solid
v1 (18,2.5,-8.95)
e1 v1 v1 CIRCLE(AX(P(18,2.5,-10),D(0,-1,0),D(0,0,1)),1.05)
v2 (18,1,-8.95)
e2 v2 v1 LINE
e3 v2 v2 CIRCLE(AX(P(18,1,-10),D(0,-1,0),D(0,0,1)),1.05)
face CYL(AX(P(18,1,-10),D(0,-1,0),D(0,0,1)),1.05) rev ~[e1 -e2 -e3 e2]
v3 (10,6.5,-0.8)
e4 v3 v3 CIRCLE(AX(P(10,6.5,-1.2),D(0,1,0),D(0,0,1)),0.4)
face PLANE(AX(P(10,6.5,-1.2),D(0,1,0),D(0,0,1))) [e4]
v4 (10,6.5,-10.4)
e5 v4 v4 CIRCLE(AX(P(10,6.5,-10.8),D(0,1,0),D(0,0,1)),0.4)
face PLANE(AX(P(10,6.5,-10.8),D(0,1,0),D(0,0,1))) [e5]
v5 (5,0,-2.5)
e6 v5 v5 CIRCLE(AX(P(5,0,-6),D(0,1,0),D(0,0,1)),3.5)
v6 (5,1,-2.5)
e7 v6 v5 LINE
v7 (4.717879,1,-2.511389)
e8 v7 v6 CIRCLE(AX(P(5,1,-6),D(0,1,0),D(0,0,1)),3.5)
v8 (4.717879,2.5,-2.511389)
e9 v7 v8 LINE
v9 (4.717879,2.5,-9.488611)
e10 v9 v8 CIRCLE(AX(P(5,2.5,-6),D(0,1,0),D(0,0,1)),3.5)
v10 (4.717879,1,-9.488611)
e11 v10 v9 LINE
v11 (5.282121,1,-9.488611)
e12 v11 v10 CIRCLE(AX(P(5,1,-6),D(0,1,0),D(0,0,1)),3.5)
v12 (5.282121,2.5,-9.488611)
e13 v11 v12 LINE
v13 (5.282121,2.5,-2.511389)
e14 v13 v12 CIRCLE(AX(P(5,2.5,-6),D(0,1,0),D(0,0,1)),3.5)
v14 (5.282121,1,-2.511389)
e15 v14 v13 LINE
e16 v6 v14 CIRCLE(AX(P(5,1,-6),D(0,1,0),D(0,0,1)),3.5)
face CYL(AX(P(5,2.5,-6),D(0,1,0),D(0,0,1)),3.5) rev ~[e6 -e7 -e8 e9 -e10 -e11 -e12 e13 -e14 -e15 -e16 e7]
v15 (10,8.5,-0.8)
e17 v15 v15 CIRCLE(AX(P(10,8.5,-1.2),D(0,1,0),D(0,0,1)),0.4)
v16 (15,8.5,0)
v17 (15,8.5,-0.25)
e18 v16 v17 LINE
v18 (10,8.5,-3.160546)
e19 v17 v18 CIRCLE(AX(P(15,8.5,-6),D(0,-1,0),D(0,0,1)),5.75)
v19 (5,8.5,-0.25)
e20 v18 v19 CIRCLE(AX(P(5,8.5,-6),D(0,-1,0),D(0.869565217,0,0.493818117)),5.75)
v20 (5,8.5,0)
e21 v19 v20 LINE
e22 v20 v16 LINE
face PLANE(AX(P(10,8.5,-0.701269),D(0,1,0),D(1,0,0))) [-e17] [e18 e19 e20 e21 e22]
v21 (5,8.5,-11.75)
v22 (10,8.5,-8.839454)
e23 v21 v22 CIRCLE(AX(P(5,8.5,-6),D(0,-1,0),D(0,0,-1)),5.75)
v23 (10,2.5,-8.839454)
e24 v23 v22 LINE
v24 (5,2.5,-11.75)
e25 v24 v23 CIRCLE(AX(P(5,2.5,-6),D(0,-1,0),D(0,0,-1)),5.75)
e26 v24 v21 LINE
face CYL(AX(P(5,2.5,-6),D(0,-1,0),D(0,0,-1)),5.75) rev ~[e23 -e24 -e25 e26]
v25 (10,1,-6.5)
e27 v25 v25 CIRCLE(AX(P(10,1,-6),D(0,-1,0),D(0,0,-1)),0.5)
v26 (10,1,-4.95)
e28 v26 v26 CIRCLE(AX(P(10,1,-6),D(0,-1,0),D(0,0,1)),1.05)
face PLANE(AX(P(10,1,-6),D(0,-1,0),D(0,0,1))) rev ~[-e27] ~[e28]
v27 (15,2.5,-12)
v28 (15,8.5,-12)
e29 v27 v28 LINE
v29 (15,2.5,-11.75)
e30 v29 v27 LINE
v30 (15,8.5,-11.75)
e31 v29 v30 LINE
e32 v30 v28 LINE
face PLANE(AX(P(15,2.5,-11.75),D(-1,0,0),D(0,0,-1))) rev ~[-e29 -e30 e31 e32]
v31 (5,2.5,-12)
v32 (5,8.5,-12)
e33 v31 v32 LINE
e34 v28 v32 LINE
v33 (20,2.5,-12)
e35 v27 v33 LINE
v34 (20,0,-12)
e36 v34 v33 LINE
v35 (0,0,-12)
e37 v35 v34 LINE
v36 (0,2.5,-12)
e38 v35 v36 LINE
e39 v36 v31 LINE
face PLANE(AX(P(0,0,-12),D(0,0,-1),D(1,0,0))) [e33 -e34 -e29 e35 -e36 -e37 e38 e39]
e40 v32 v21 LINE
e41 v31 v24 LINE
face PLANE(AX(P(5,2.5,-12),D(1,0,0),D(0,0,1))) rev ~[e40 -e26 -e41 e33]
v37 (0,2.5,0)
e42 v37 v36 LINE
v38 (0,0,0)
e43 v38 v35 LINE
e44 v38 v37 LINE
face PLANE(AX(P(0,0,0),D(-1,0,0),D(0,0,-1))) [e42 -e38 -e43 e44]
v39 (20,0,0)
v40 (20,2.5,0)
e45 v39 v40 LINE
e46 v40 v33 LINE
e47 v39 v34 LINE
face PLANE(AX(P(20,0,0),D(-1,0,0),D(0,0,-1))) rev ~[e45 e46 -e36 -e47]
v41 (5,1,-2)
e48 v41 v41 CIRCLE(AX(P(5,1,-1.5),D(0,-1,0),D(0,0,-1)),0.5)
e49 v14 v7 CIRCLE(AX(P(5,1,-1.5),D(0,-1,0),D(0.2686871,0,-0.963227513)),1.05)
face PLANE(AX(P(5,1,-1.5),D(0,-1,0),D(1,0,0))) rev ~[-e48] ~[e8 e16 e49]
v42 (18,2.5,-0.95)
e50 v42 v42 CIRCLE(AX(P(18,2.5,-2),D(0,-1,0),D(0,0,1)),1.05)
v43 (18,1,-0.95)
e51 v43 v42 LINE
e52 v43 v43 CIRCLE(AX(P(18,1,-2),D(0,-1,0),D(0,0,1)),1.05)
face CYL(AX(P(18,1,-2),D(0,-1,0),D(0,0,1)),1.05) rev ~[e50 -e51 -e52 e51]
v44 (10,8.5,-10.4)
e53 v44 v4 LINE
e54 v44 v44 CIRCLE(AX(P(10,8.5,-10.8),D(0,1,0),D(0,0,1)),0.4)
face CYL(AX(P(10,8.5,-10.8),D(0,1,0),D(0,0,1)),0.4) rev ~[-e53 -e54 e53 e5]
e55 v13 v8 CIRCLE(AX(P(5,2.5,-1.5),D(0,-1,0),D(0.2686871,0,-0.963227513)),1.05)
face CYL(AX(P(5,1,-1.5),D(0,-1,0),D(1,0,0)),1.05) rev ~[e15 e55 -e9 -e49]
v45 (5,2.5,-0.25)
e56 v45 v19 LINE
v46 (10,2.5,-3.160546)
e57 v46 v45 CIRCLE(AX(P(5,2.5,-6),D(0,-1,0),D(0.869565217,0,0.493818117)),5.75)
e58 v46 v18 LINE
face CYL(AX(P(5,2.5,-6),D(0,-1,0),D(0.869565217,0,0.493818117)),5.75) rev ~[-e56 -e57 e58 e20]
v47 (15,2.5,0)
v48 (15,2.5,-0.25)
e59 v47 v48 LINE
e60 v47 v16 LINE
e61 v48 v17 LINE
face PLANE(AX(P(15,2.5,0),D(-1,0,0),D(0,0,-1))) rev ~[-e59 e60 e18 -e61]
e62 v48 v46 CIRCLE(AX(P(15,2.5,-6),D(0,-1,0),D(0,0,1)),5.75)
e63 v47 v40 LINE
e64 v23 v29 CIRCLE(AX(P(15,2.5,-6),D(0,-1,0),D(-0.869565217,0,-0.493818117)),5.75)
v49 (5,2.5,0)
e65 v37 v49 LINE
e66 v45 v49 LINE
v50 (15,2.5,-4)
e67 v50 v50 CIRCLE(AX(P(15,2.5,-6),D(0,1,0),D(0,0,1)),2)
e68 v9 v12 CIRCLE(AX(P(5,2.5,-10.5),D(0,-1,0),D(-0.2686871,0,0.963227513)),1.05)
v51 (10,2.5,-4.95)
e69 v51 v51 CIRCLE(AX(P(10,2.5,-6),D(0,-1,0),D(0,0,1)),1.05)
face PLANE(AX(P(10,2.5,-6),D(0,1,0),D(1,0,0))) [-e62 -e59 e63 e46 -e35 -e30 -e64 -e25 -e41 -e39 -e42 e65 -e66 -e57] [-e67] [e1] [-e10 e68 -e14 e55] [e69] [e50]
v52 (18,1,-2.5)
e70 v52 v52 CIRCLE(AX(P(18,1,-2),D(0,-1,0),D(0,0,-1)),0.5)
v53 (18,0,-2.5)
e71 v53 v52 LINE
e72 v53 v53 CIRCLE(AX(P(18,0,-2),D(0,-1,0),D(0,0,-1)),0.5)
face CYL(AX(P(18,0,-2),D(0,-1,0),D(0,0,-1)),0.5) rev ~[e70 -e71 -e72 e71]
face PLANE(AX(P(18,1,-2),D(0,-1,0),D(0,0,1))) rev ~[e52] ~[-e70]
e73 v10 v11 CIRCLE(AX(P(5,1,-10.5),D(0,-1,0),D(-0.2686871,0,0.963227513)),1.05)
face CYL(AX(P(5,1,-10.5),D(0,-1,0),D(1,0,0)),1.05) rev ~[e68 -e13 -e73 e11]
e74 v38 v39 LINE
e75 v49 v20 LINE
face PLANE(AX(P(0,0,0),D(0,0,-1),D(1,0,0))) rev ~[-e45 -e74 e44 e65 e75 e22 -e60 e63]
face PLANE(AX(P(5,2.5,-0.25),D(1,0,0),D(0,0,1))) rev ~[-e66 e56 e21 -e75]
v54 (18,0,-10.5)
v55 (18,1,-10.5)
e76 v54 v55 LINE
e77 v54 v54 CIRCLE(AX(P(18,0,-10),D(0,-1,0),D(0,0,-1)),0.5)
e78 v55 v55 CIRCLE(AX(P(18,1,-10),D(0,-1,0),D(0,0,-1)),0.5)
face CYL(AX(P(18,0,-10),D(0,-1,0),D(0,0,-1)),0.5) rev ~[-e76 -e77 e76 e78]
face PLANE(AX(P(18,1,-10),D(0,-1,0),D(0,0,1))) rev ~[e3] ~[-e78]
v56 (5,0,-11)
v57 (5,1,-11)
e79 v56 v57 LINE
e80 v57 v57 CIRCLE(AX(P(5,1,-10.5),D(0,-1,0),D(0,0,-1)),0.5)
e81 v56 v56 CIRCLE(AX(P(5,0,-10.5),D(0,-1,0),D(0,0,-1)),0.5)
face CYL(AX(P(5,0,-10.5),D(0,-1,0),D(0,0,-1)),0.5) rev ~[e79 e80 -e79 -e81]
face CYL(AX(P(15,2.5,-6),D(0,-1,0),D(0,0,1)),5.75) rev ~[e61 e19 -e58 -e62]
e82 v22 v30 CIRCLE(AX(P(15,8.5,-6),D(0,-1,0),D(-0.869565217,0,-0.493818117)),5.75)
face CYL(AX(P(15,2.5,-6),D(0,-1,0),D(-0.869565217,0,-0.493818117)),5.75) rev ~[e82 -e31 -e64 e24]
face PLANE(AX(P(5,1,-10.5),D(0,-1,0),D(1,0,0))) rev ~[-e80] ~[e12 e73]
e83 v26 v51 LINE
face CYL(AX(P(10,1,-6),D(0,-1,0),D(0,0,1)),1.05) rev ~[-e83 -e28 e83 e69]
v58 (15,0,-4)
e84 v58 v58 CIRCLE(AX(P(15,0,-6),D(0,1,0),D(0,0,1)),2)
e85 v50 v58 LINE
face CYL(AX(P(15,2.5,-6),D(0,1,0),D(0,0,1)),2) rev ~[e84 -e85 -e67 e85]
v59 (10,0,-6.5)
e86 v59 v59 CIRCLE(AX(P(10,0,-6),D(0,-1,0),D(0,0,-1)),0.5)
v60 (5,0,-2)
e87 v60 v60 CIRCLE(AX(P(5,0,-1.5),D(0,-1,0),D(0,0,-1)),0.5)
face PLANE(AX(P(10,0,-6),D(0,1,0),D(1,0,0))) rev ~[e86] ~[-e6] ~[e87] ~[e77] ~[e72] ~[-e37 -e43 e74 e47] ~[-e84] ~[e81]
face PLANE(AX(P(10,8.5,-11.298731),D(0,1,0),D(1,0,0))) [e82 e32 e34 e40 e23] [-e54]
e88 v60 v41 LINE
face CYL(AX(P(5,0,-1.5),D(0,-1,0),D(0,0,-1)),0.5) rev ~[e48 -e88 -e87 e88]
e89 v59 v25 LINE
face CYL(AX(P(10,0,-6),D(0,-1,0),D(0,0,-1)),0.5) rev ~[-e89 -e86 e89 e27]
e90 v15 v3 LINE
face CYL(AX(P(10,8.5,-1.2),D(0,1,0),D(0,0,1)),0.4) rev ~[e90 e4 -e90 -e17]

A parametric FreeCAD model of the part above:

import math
import FreeCAD as App
import Part
import Sketcher
Q = App.Units.Quantity


def add_polygon(sketch, points):
    """Adds a closed chain of lines whose ends are joined by coincident constraints."""
    first, n = sketch.GeometryCount, len(points)
    for a, b in zip(points, points[1:] + points[:1]):
        sketch.addGeometry(Part.LineSegment(App.Vector(*a, 0), App.Vector(*b, 0)), False)
    for i in range(n):
        sketch.addConstraint(Sketcher.Constraint("Coincident", first + i, 2, first + (i + 1) % n, 1))

doc = App.newDocument("Part")
params = doc.addObject("Spreadsheet::Sheet", "Params")
for row, (alias, value) in enumerate([
    ("sketch1_width", "20 mm"),
    ("sketch1_height", "12 mm"),
    ("pad1_length", "2.5 mm"),
    ("sketch2_diameter", "4 mm"),
    ("sketch2_diameter2", "7 mm"),
    ("sketch3_diameter", "1 mm"),
    ("sketch4_diameter", "1 mm"),
    ("sketch4_diameter2", "2.1 mm"),
    ("pocket3_length", "1.5 mm"),
    ("sketch5_width", "10 mm"),
    ("sketch5_radius", "5.75 mm"),
    ("pad2_length", "6 mm"),
    ("sketch6_diameter", "0.8 mm"),
    ("pocket4_length", "2 mm"),
], start=1):
    params.set(f"A{row}", alias)
    params.set(f"B{row}", "=" + value)
    params.setAlias(f"B{row}", alias)

body = doc.addObject("PartDesign::Body", "Body")

sketch1 = body.newObject("Sketcher::SketchObject", "Sketch")
sketch1.AttachmentSupport = (doc.getObject("XZ_Plane"), [""])
sketch1.MapMode = "FlatFace"
add_polygon(sketch1, [(0, -12), (0, 0), (20, 0), (20, -12)])
sketch1.addConstraint(Sketcher.Constraint("Vertical", 0))
sketch1.addConstraint(Sketcher.Constraint("Horizontal", 1))
sketch1.addConstraint(Sketcher.Constraint("Vertical", 2))
sketch1.addConstraint(Sketcher.Constraint("Horizontal", 3))
sketch1.addConstraint(Sketcher.Constraint("Coincident", 0, 2, -1, 1))
sketch1.addConstraint(Sketcher.Constraint("DistanceX", 1, 1, 1, 2, Q("20 mm")))
sketch1.addConstraint(Sketcher.Constraint("DistanceY", 0, 1, 0, 2, Q("12 mm")))
sketch1.setExpression("Constraints[9]", "Params.sketch1_width")
sketch1.setExpression("Constraints[10]", "Params.sketch1_height")
pad1 = body.newObject("PartDesign::Pad", "Pad")
pad1.Profile = sketch1
pad1.setExpression("Length", "Params.pad1_length")
pad1.Reversed = True

sketch2 = body.newObject("Sketcher::SketchObject", "Sketch001")
sketch2.AttachmentSupport = (doc.getObject("XZ_Plane"), [""])
sketch2.MapMode = "FlatFace"
sketch2.AttachmentOffset = App.Placement(App.Vector(0, 0, -2.5), App.Rotation())
sketch2.addGeometry(Part.Circle(App.Vector(15, -6, 0), App.Vector(0, 0, 1), 2), False)
sketch2.addGeometry(Part.Circle(App.Vector(5, -6, 0), App.Vector(0, 0, 1), 3.5), False)
sketch2.addConstraint(Sketcher.Constraint("Horizontal", 0, 3, 1, 3))
sketch2.addConstraint(Sketcher.Constraint("Diameter", 0, Q("4 mm")))
sketch2.addConstraint(Sketcher.Constraint("Diameter", 1, Q("7 mm")))
sketch2.addConstraint(Sketcher.Constraint("DistanceX", -1, 1, 0, 3, Q("15 mm")))
sketch2.addConstraint(Sketcher.Constraint("DistanceY", 0, 3, -1, 1, Q("6 mm")))
sketch2.addConstraint(Sketcher.Constraint("DistanceX", -1, 1, 1, 3, Q("5 mm")))
sketch2.setExpression("Constraints[1]", "Params.sketch2_diameter")
sketch2.setExpression("Constraints[2]", "Params.sketch2_diameter2")
pocket1 = body.newObject("PartDesign::Pocket", "Pocket")
pocket1.Profile = sketch2
pocket1.Type = "ThroughAll"
pocket1.Reversed = True

sketch3 = body.newObject("Sketcher::SketchObject", "Sketch002")
sketch3.AttachmentSupport = (doc.getObject("XZ_Plane"), [""])
sketch3.MapMode = "FlatFace"
sketch3.addGeometry(Part.Circle(App.Vector(18, -2, 0), App.Vector(0, 0, 1), 0.5), False)
sketch3.addGeometry(Part.Circle(App.Vector(18, -10, 0), App.Vector(0, 0, 1), 0.5), False)
sketch3.addGeometry(Part.Circle(App.Vector(10, -6, 0), App.Vector(0, 0, 1), 0.5), False)
sketch3.addGeometry(Part.Circle(App.Vector(5, -1.5, 0), App.Vector(0, 0, 1), 0.5), False)
sketch3.addGeometry(Part.Circle(App.Vector(5, -10.5, 0), App.Vector(0, 0, 1), 0.5), False)
sketch3.addConstraint(Sketcher.Constraint("Equal", 0, 1))
sketch3.addConstraint(Sketcher.Constraint("Equal", 1, 2))
sketch3.addConstraint(Sketcher.Constraint("Equal", 2, 3))
sketch3.addConstraint(Sketcher.Constraint("Equal", 3, 4))
sketch3.addConstraint(Sketcher.Constraint("Vertical", 0, 3, 1, 3))
sketch3.addConstraint(Sketcher.Constraint("Vertical", 3, 3, 4, 3))
sketch3.addConstraint(Sketcher.Constraint("Diameter", 0, Q("1 mm")))
sketch3.addConstraint(Sketcher.Constraint("DistanceX", -1, 1, 0, 3, Q("18 mm")))
sketch3.addConstraint(Sketcher.Constraint("DistanceY", 0, 3, -1, 1, Q("2 mm")))
sketch3.addConstraint(Sketcher.Constraint("DistanceY", 1, 3, -1, 1, Q("10 mm")))
sketch3.addConstraint(Sketcher.Constraint("DistanceX", -1, 1, 2, 3, Q("10 mm")))
sketch3.addConstraint(Sketcher.Constraint("DistanceY", 2, 3, -1, 1, Q("6 mm")))
sketch3.addConstraint(Sketcher.Constraint("DistanceX", -1, 1, 3, 3, Q("5 mm")))
sketch3.addConstraint(Sketcher.Constraint("DistanceY", 4, 3, 3, 3, Q("9 mm")))
sketch3.addConstraint(Sketcher.Constraint("DistanceY", 3, 3, -1, 1, Q("1.5 mm")))
sketch3.setExpression("Constraints[6]", "Params.sketch3_diameter")
pocket2 = body.newObject("PartDesign::Pocket", "Pocket001")
pocket2.Profile = sketch3
pocket2.Type = "ThroughAll"

sketch4 = body.newObject("Sketcher::SketchObject", "Sketch003")
sketch4.AttachmentSupport = (doc.getObject("XZ_Plane"), [""])
sketch4.MapMode = "FlatFace"
sketch4.AttachmentOffset = App.Placement(App.Vector(0, 0, -1), App.Rotation())
sketch4.addGeometry(Part.Circle(App.Vector(5, -10.5, 0), App.Vector(0, 0, 1), 1.1), False)
sketch4.addGeometry(Part.Circle(App.Vector(5, -10.5, 0), App.Vector(0, 0, 1), 0.5), False)
sketch4.addGeometry(Part.Circle(App.Vector(5, -1.5, 0), App.Vector(0, 0, 1), 1.1), False)
sketch4.addGeometry(Part.Circle(App.Vector(5, -1.5, 0), App.Vector(0, 0, 1), 0.5), False)
sketch4.addGeometry(Part.Circle(App.Vector(18, -2, 0), App.Vector(0, 0, 1), 1.1), False)
sketch4.addGeometry(Part.Circle(App.Vector(18, -2, 0), App.Vector(0, 0, 1), 0.5), False)
sketch4.addGeometry(Part.Circle(App.Vector(10, -6, 0), App.Vector(0, 0, 1), 1.1), False)
sketch4.addGeometry(Part.Circle(App.Vector(10, -6, 0), App.Vector(0, 0, 1), 0.5), False)
sketch4.addGeometry(Part.Circle(App.Vector(18, -10, 0), App.Vector(0, 0, 1), 1.1), False)
sketch4.addGeometry(Part.Circle(App.Vector(18, -10, 0), App.Vector(0, 0, 1), 0.5), False)
sketch4.addConstraint(Sketcher.Constraint("Coincident", 1, 3, 0, 3))
sketch4.addConstraint(Sketcher.Constraint("Coincident", 3, 3, 2, 3))
sketch4.addConstraint(Sketcher.Constraint("Coincident", 5, 3, 4, 3))
sketch4.addConstraint(Sketcher.Constraint("Coincident", 7, 3, 6, 3))
sketch4.addConstraint(Sketcher.Constraint("Coincident", 9, 3, 8, 3))
sketch4.addConstraint(Sketcher.Constraint("Equal", 0, 2))
sketch4.addConstraint(Sketcher.Constraint("Equal", 1, 3))
sketch4.addConstraint(Sketcher.Constraint("Equal", 2, 4))
sketch4.addConstraint(Sketcher.Constraint("Equal", 3, 5))
sketch4.addConstraint(Sketcher.Constraint("Equal", 4, 6))
sketch4.addConstraint(Sketcher.Constraint("Equal", 5, 7))
sketch4.addConstraint(Sketcher.Constraint("Equal", 6, 8))
sketch4.addConstraint(Sketcher.Constraint("Equal", 7, 9))
sketch4.addConstraint(Sketcher.Constraint("Vertical", 1, 3, 2, 3))
sketch4.addConstraint(Sketcher.Constraint("Vertical", 5, 3, 8, 3))
sketch4.addConstraint(Sketcher.Constraint("Diameter", 1, Q("1 mm")))
sketch4.addConstraint(Sketcher.Constraint("Diameter", 0, Q("2.1 mm")))
sketch4.addConstraint(Sketcher.Constraint("DistanceX", -1, 1, 0, 3, Q("5 mm")))
sketch4.addConstraint(Sketcher.Constraint("DistanceX", -1, 1, 4, 3, Q("18 mm")))
sketch4.addConstraint(Sketcher.Constraint("DistanceY", 4, 3, -1, 1, Q("2 mm")))
sketch4.addConstraint(Sketcher.Constraint("DistanceX", -1, 1, 6, 3, Q("10 mm")))
sketch4.addConstraint(Sketcher.Constraint("DistanceY", 6, 3, -1, 1, Q("6 mm")))
sketch4.addConstraint(Sketcher.Constraint("DistanceY", 8, 3, -1, 1, Q("10 mm")))
sketch4.addConstraint(Sketcher.Constraint("DistanceY", 0, 3, 2, 3, Q("9 mm")))
sketch4.addConstraint(Sketcher.Constraint("DistanceY", 0, 3, -1, 1, Q("10.5 mm")))
sketch4.setExpression("Constraints[15]", "Params.sketch4_diameter")
sketch4.setExpression("Constraints[16]", "Params.sketch4_diameter2")
pocket3 = body.newObject("PartDesign::Pocket", "Pocket002")
pocket3.Profile = sketch4
pocket3.setExpression("Length", "Params.pocket3_length")

sketch5 = body.newObject("Sketcher::SketchObject", "Sketch004")
sketch5.AttachmentSupport = (doc.getObject("XZ_Plane"), [""])
sketch5.MapMode = "FlatFace"
sketch5.AttachmentOffset = App.Placement(App.Vector(0, 0, -2.5), App.Rotation())
sketch5.addGeometry(Part.LineSegment(App.Vector(15, -11.75, 0), App.Vector(15, -12, 0)), False)
sketch5.addGeometry(Part.LineSegment(App.Vector(15, -12, 0), App.Vector(5, -12, 0)), False)
sketch5.addGeometry(Part.LineSegment(App.Vector(5, -12, 0), App.Vector(5, -11.75, 0)), False)
sketch5.addGeometry(Part.ArcOfCircle(Part.Circle(App.Vector(5, -6, 0), App.Vector(0, 0, 1), 5.75), math.radians(-90), math.radians(-30)), False)
sketch5.addGeometry(Part.ArcOfCircle(Part.Circle(App.Vector(15, -6, 0), App.Vector(0, 0, 1), 5.75), math.radians(-150), math.radians(-90)), False)
sketch5.addGeometry(Part.LineSegment(App.Vector(15, 0, 0), App.Vector(15, -0.25, 0)), False)
sketch5.addGeometry(Part.ArcOfCircle(Part.Circle(App.Vector(15, -6, 0), App.Vector(0, 0, 1), 5.75), math.radians(90), math.radians(150)), False)
sketch5.addGeometry(Part.ArcOfCircle(Part.Circle(App.Vector(5, -6, 0), App.Vector(0, 0, 1), 5.75), math.radians(30), math.radians(90)), False)
sketch5.addGeometry(Part.LineSegment(App.Vector(5, -0.25, 0), App.Vector(5, 0, 0)), False)
sketch5.addGeometry(Part.LineSegment(App.Vector(5, 0, 0), App.Vector(15, 0, 0)), False)
sketch5.addConstraint(Sketcher.Constraint("Coincident", 0, 2, 1, 1))
sketch5.addConstraint(Sketcher.Constraint("Coincident", 1, 2, 2, 1))
sketch5.addConstraint(Sketcher.Constraint("Coincident", 2, 2, 3, 1))
sketch5.addConstraint(Sketcher.Constraint("Coincident", 3, 2, 4, 1))
sketch5.addConstraint(Sketcher.Constraint("Coincident", 4, 2, 0, 1))
sketch5.addConstraint(Sketcher.Constraint("Coincident", 5, 2, 6, 1))
sketch5.addConstraint(Sketcher.Constraint("Coincident", 6, 2, 7, 1))
sketch5.addConstraint(Sketcher.Constraint("Coincident", 7, 2, 8, 1))
sketch5.addConstraint(Sketcher.Constraint("Coincident", 8, 2, 9, 1))
sketch5.addConstraint(Sketcher.Constraint("Coincident", 9, 2, 5, 1))
sketch5.addConstraint(Sketcher.Constraint("Vertical", 0))
sketch5.addConstraint(Sketcher.Constraint("Horizontal", 1))
sketch5.addConstraint(Sketcher.Constraint("Vertical", 2))
sketch5.addConstraint(Sketcher.Constraint("Vertical", 5))
sketch5.addConstraint(Sketcher.Constraint("Vertical", 8))
sketch5.addConstraint(Sketcher.Constraint("Horizontal", 9))
sketch5.addConstraint(Sketcher.Constraint("Coincident", 6, 3, 4, 3))
sketch5.addConstraint(Sketcher.Constraint("Coincident", 7, 3, 3, 3))
sketch5.addConstraint(Sketcher.Constraint("Equal", 3, 4))
sketch5.addConstraint(Sketcher.Constraint("Equal", 4, 6))
sketch5.addConstraint(Sketcher.Constraint("Equal", 6, 7))
sketch5.addConstraint(Sketcher.Constraint("PointOnObject", 8, 2, -1))
sketch5.addConstraint(Sketcher.Constraint("Horizontal", 3, 3, 4, 3))
sketch5.addConstraint(Sketcher.Constraint("Vertical", 6, 3, 0, 2))
sketch5.addConstraint(Sketcher.Constraint("Vertical", 7, 3, 1, 2))
sketch5.addConstraint(Sketcher.Constraint("Vertical", 4, 2, 5, 2))
sketch5.addConstraint(Sketcher.Constraint("Vertical", 2, 2, 7, 2))
sketch5.addConstraint(Sketcher.Constraint("Equal", 2, 5))
sketch5.addConstraint(Sketcher.Constraint("DistanceX", 1, 2, 1, 1, Q("10 mm")))
sketch5.addConstraint(Sketcher.Constraint("Radius", 3, Q("5.75 mm")))
sketch5.addConstraint(Sketcher.Constraint("DistanceX", -1, 1, 3, 3, Q("5 mm")))
sketch5.addConstraint(Sketcher.Constraint("DistanceY", 3, 3, -1, 1, Q("6 mm")))
sketch5.setExpression("Constraints[28]", "Params.sketch5_width")
sketch5.setExpression("Constraints[29]", "Params.sketch5_radius")
pad2 = body.newObject("PartDesign::Pad", "Pad001")
pad2.Profile = sketch5
pad2.setExpression("Length", "Params.pad2_length")
pad2.Reversed = True

sketch6 = body.newObject("Sketcher::SketchObject", "Sketch005")
sketch6.AttachmentSupport = (doc.getObject("XZ_Plane"), [""])
sketch6.MapMode = "FlatFace"
sketch6.AttachmentOffset = App.Placement(App.Vector(0, 0, -8.5), App.Rotation())
sketch6.addGeometry(Part.Circle(App.Vector(10, -1.2, 0), App.Vector(0, 0, 1), 0.4), False)
sketch6.addGeometry(Part.Circle(App.Vector(10, -10.8, 0), App.Vector(0, 0, 1), 0.4), False)
sketch6.addConstraint(Sketcher.Constraint("Equal", 0, 1))
sketch6.addConstraint(Sketcher.Constraint("Vertical", 0, 3, 1, 3))
sketch6.addConstraint(Sketcher.Constraint("Diameter", 0, Q("0.8 mm")))
sketch6.addConstraint(Sketcher.Constraint("DistanceX", -1, 1, 0, 3, Q("10 mm")))
sketch6.addConstraint(Sketcher.Constraint("DistanceY", 0, 3, -1, 1, Q("1.2 mm")))
sketch6.addConstraint(Sketcher.Constraint("DistanceY", 1, 3, -1, 1, Q("10.8 mm")))
sketch6.setExpression("Constraints[2]", "Params.sketch6_diameter")
pocket4 = body.newObject("PartDesign::Pocket", "Pocket003")
pocket4.Profile = sketch6
pocket4.setExpression("Length", "Params.pocket4_length")
pocket4.Reversed = True

doc.recompute()
